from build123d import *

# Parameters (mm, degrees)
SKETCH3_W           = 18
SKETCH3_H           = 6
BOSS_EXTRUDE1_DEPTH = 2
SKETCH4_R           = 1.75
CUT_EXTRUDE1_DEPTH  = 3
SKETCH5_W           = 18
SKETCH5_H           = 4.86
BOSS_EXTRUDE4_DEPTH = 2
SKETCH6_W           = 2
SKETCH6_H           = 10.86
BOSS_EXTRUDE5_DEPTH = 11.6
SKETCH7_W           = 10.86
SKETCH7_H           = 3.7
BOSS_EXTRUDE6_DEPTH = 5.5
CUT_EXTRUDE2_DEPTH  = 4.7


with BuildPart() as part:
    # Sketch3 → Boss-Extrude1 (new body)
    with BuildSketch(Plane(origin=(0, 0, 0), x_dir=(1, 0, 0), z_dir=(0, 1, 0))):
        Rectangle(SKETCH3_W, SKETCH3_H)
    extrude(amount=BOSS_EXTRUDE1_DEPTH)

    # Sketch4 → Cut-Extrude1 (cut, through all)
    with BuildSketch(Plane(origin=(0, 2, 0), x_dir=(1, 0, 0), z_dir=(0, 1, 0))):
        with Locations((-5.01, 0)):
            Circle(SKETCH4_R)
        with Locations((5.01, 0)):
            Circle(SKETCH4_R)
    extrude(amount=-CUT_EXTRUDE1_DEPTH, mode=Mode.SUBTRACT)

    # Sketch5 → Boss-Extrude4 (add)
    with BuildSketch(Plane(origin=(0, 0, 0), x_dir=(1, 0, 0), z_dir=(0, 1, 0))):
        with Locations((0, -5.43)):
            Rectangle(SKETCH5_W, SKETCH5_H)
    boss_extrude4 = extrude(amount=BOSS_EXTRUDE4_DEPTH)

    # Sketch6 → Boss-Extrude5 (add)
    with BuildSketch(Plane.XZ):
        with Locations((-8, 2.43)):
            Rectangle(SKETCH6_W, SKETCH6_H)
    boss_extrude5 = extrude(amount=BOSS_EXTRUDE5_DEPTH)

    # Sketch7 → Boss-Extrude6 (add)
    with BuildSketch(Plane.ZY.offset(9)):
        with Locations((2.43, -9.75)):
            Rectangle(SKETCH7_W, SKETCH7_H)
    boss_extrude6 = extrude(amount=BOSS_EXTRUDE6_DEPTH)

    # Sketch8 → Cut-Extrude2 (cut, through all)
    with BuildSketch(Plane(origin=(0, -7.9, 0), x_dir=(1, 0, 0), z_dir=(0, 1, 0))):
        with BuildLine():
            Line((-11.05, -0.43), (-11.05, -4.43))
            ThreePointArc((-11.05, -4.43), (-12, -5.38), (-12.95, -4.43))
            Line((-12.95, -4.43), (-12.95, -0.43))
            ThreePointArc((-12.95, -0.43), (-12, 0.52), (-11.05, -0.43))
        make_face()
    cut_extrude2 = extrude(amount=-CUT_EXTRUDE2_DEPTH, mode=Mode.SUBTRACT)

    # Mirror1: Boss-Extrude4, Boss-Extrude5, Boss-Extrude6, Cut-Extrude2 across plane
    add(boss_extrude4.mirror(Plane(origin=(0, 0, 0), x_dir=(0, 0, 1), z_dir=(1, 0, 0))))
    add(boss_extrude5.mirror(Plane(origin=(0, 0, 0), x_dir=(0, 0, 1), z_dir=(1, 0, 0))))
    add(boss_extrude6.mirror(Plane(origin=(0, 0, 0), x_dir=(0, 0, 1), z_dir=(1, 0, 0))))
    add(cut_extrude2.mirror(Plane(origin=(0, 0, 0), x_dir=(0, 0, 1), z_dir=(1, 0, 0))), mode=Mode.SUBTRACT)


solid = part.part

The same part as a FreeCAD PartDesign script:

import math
import FreeCAD as App
import Part
import Sketcher

V = App.Vector


def add_polygon(sketch, points):
    """Adds a closed chain of lines whose ends are joined by coincident constraints."""
    first, n = sketch.GeometryCount, len(points)
    for a, b in zip(points, points[1:] + points[:1]):
        sketch.addGeometry(Part.LineSegment(App.Vector(*a, 0), App.Vector(*b, 0)), False)
    for i in range(n):
        sketch.addConstraint(Sketcher.Constraint("Coincident", first + i, 2, first + (i + 1) % n, 1))

doc = App.newDocument("Part")
body = doc.addObject("PartDesign::Body", "Body")

sketch1 = body.newObject("Sketcher::SketchObject", "Sketch")
sketch1.AttachmentSupport = (doc.getObject("XZ_Plane"), [""])
sketch1.MapMode = "FlatFace"
add_polygon(sketch1, [(-9, -3), (-9, 3), (9, 3), (9, -3)])
sketch1.addConstraint([
    Sketcher.Constraint("Vertical", 0),
    Sketcher.Constraint("Horizontal", 1),
    Sketcher.Constraint("Vertical", 2),
    Sketcher.Constraint("Horizontal", 3),
    Sketcher.Constraint("Symmetric", 0, 2, 2, 2, -1, 1),
    Sketcher.Constraint("DistanceX", 1, 1, 1, 2, 18.0),
    Sketcher.Constraint("DistanceY", 0, 1, 0, 2, 6.0),
])
pad1 = body.newObject("PartDesign::Pad", "Pad")
pad1.Profile = sketch1
pad1.Length = 2
pad1.Reversed = True

sketch2 = body.newObject("Sketcher::SketchObject", "Sketch001")
sketch2.AttachmentSupport = (doc.getObject("XZ_Plane"), [""])
sketch2.MapMode = "FlatFace"
sketch2.AttachmentOffset = App.Placement(V(0, 0, -2), App.Rotation())
sketch2.addGeometry([
    Part.Circle(V(-5.01, 0, 0), V(0, 0, 1), 1.75),
    Part.Circle(V(5.01, 0, 0), V(0, 0, 1), 1.75),
], False)
sketch2.addConstraint([
    Sketcher.Constraint("Equal", 0, 1),
    Sketcher.Constraint("Symmetric", 0, 3, 1, 3, -1, 1),
    Sketcher.Constraint("PointOnObject", 0, 3, -1),
    Sketcher.Constraint("Diameter", 0, 3.5),
    Sketcher.Constraint("DistanceX", 0, 3, -1, 1, 5.01),
])
pocket1 = body.newObject("PartDesign::Pocket", "Pocket")
pocket1.Profile = sketch2
pocket1.Type = "ThroughAll"
pocket1.Reversed = True

sketch3 = body.newObject("Sketcher::SketchObject", "Sketch002")
sketch3.AttachmentSupport = (doc.getObject("XZ_Plane"), [""])
sketch3.MapMode = "FlatFace"
add_polygon(sketch3, [(-9, 3), (-9, 7.86), (9, 7.86), (9, 3)])
sketch3.addConstraint([
    Sketcher.Constraint("Vertical", 0),
    Sketcher.Constraint("Horizontal", 1),
    Sketcher.Constraint("Vertical", 2),
    Sketcher.Constraint("Horizontal", 3),
    Sketcher.Constraint("DistanceX", 1, 1, 1, 2, 18.0),
    Sketcher.Constraint("DistanceX", 0, 2, -1, 1, 9.0),
    Sketcher.Constraint("DistanceY", -1, 1, 2, 2, 3.0),
    Sketcher.Constraint("DistanceY", 0, 1, 0, 2, 4.86),
])
pad2 = body.newObject("PartDesign::Pad", "Pad001")
pad2.Profile = sketch3
pad2.Length = 2
pad2.Reversed = True

sketch4 = body.newObject("Sketcher::SketchObject", "Sketch003")
sketch4.AttachmentSupport = (doc.getObject("XZ_Plane"), [""])
sketch4.MapMode = "FlatFace"
add_polygon(sketch4, [(-9, 7.86), (-9, -3), (-7, -3), (-7, 7.86)])
sketch4.addConstraint([
    Sketcher.Constraint("Vertical", 0),
    Sketcher.Constraint("Horizontal", 1),
    Sketcher.Constraint("Vertical", 2),
    Sketcher.Constraint("Horizontal", 3),
    Sketcher.Constraint("DistanceX", 1, 1, 1, 2, 2.0),
    Sketcher.Constraint("DistanceX", 0, 2, -1, 1, 9.0),
    Sketcher.Constraint("DistanceY", 0, 2, -1, 1, 3.0),
    Sketcher.Constraint("DistanceY", 0, 2, 0, 1, 10.86),
])
pad3 = body.newObject("PartDesign::Pad", "Pad002")
pad3.Profile = sketch4
pad3.Length = 11.6

sketch5 = body.newObject("Sketcher::SketchObject", "Sketch004")
sketch5.AttachmentSupport = (doc.getObject("YZ_Plane"), [""])
sketch5.MapMode = "FlatFace"
sketch5.AttachmentOffset = App.Placement(V(0, 0, -9), App.Rotation())
add_polygon(sketch5, [(-7.9, -3), (-11.6, -3), (-11.6, 7.86), (-7.9, 7.86)])
sketch5.addConstraint([
    Sketcher.Constraint("Horizontal", 0),
    Sketcher.Constraint("Vertical", 1),
    Sketcher.Constraint("Horizontal", 2),
    Sketcher.Constraint("Vertical", 3),
    Sketcher.Constraint("DistanceX", 0, 2, 0, 1, 3.7),
    Sketcher.Constraint("DistanceY", 0, 2, -1, 1, 3.0),
    Sketcher.Constraint("DistanceY", 1, 1, 1, 2, 10.86),
    Sketcher.Constraint("DistanceX", 0, 2, -1, 1, 11.6),
])
pad4 = body.newObject("PartDesign::Pad", "Pad003")
pad4.Profile = sketch5
pad4.Length = 5.5
pad4.Reversed = True

sketch6 = body.newObject("Sketcher::SketchObject", "Sketch005")
sketch6.AttachmentSupport = (doc.getObject("XZ_Plane"), [""])
sketch6.MapMode = "FlatFace"
sketch6.AttachmentOffset = App.Placement(V(0, 0, 7.9), App.Rotation())
sketch6.addGeometry([
    Part.LineSegment(V(-11.05, 4.43, 0), V(-11.05, 0.43, 0)),
    Part.ArcOfCircle(Part.Circle(V(-12, 0.43, 0), V(0, 0, 1), 0.95), math.radians(180), math.radians(360)),
    Part.LineSegment(V(-12.95, 0.43, 0), V(-12.95, 4.43, 0)),
    Part.ArcOfCircle(Part.Circle(V(-12, 4.43, 0), V(0, 0, 1), 0.95), math.radians(0), math.radians(180)),
], False)
sketch6.addConstraint([
    Sketcher.Constraint("Tangent", 0, 2, 1, 2),
    Sketcher.Constraint("Tangent", 1, 1, 2, 1),
    Sketcher.Constraint("Tangent", 2, 2, 3, 2),
    Sketcher.Constraint("Tangent", 3, 1, 0, 1),
    Sketcher.Constraint("Vertical", 0),
    Sketcher.Constraint("Vertical", 2),
    Sketcher.Constraint("DistanceY", 0, 2, 0, 1, 4.0),
    Sketcher.Constraint("Radius", 1, 0.95),
    Sketcher.Constraint("DistanceX", 1, 3, -1, 1, 12.0),
    Sketcher.Constraint("DistanceY", -1, 1, 1, 3, 0.43),
])
pocket2 = body.newObject("PartDesign::Pocket", "Pocket001")
pocket2.Profile = sketch6
pocket2.Type = "ThroughAll"
pocket2.Reversed = True
doc.recompute()

mirrored = body.newObject("PartDesign::Mirrored", "Mirrored")
mirrored.Originals = [pad2, pad3, pad4, pocket2]
mirrored.MirrorPlane = (doc.getObject("YZ_Plane"), [""])
body.Tip = mirrored

doc.recompute()
